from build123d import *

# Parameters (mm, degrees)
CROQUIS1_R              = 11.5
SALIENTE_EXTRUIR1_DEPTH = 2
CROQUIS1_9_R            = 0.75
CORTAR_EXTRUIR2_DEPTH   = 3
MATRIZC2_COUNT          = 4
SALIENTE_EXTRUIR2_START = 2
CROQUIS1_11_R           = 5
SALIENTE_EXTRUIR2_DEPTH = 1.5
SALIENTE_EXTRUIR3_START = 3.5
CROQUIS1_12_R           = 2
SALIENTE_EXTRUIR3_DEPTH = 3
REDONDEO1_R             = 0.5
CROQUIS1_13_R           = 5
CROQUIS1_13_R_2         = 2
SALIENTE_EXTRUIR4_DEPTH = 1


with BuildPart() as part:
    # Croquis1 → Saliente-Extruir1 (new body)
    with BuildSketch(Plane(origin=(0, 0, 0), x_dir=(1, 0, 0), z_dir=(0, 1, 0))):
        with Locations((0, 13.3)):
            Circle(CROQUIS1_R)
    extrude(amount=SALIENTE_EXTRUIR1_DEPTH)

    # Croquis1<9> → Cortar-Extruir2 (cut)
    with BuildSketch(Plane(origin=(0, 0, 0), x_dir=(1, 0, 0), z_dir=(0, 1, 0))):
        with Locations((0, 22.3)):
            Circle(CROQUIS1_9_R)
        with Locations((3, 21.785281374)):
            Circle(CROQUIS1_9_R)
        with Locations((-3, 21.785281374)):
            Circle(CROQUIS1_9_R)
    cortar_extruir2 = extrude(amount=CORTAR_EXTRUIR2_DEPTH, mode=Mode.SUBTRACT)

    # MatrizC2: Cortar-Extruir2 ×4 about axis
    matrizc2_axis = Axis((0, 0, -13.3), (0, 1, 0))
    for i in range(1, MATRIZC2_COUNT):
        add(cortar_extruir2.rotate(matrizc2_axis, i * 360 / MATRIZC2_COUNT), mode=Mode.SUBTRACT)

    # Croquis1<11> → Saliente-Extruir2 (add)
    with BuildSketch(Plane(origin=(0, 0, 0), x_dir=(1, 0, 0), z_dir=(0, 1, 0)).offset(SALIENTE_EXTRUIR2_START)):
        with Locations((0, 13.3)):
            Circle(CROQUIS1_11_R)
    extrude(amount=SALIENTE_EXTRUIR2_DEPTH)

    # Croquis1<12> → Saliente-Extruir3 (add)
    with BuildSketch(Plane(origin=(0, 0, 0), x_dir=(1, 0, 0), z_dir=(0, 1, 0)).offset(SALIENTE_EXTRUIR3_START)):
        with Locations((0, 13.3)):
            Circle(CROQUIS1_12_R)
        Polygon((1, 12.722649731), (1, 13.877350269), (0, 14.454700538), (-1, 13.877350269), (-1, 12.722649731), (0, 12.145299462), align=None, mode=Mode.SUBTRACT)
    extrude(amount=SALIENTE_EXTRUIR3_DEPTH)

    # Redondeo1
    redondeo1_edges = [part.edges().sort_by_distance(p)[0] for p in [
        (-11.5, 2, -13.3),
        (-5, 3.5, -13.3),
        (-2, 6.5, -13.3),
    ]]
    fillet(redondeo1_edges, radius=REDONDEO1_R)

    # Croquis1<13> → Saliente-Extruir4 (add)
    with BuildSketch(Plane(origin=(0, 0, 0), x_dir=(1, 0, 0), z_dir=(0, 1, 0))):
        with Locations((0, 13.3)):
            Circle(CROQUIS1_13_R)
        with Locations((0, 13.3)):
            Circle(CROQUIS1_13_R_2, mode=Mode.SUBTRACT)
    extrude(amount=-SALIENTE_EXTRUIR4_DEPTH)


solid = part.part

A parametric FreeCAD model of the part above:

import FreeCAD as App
import Part
import Sketcher
from FreeCAD import Vector
Q = App.Units.Quantity


def edges_at(feature, points):
    """Names of the edges that pass closest to the given points."""
    edges = feature.Shape.Edges
    near = lambda p: min(range(len(edges)), key=lambda i: edges[i].distToShape(Part.Vertex(*p))[0])
    return sorted({f"Edge{near(p) + 1}" for p in points})

doc = App.newDocument("Part")
body = doc.addObject("PartDesign::Body", "Body")

# Sketch on XZ plane
sketch1 = doc.addObject("Sketcher::SketchObject", "Sketch")
body.addObject(sketch1)
sketch1.AttachmentSupport = (doc.XZ_Plane, [""])
sketch1.MapMode = "FlatFace"
sketch1.addGeometry(Part.Circle(Vector(0, -13, 0), Vector(0, 0, 1), 12), False)
sketch1.addConstraint([
    Sketcher.Constraint("PointOnObject", 0, 3, -2),
    Sketcher.Constraint("Diameter", 0, Q("23 mm")),
    Sketcher.Constraint("DistanceY", 0, 3, -1, 1, Q("13.3 mm")),
])
pad1 = doc.addObject("PartDesign::Pad", "Pad")
body.addObject(pad1)
pad1.Profile = sketch1
pad1.Length = 2
pad1.Reversed = True

# Sketch on XZ plane
sketch2 = doc.addObject("Sketcher::SketchObject", "Sketch001")
body.addObject(sketch2)
sketch2.AttachmentSupport = (doc.XZ_Plane, [""])
sketch2.MapMode = "FlatFace"
sketch2.addGeometry([
    Part.Circle(Vector(0, -22.3, 0), Vector(0, 0, 1), 0.8),
    Part.Circle(Vector(3, -21.8, 0), Vector(0, 0, 1), 0.8),
    Part.Circle(Vector(-3, -21.8, 0), Vector(0, 0, 1), 0.8),
], False)
sketch2.addConstraint([
    Sketcher.Constraint("Equal", 0, 1),
    Sketcher.Constraint("Equal", 1, 2),
    Sketcher.Constraint("Symmetric", 1, 3, 2, 3, -2),
    Sketcher.Constraint("PointOnObject", 0, 3, -2),
    Sketcher.Constraint("Diameter", 0, Q("1.5 mm")),
    Sketcher.Constraint("DistanceX", -1, 1, 1, 3, Q("3 mm")),
    Sketcher.Constraint("DistanceY", 0, 3, -1, 1, Q("22.3 mm")),
    Sketcher.Constraint("DistanceY", 1, 3, -1, 1, Q("21.785281 mm")),
])
pocket1 = doc.addObject("PartDesign::Pocket", "Pocket")
body.addObject(pocket1)
pocket1.Profile = sketch2
pocket1.Length = 3
doc.recompute()

datumline = doc.addObject("PartDesign::Line", "DatumLine")
body.addObject(datumline)
datumline.Placement = App.Placement(Vector(0, 0, -13.3), App.Rotation(Vector(0, 0, 1), Vector(0, 1, 0)))
polarpattern = doc.addObject("PartDesign::PolarPattern", "PolarPattern")
body.addObject(polarpattern)
polarpattern.Originals = [pocket1]
polarpattern.Axis = (datumline, [""])
polarpattern.Angle = 360
polarpattern.Occurrences = 4
body.Tip = polarpattern

# Sketch on XZ plane
sketch3 = doc.addObject("Sketcher::SketchObject", "Sketch002")
body.addObject(sketch3)
sketch3.AttachmentSupport = (doc.XZ_Plane, [""])
sketch3.MapMode = "FlatFace"
sketch3.AttachmentOffset = App.Placement(Vector(0, 0, -2), App.Rotation())
sketch3.addGeometry(Part.Circle(Vector(0, -13, 0), Vector(0, 0, 1), 5), False)
sketch3.addConstraint([
    Sketcher.Constraint("PointOnObject", 0, 3, -2),
    Sketcher.Constraint("Diameter", 0, Q("10 mm")),
    Sketcher.Constraint("DistanceY", 0, 3, -1, 1, Q("13.3 mm")),
])
pad2 = doc.addObject("PartDesign::Pad", "Pad001")
body.addObject(pad2)
pad2.Profile = sketch3
pad2.Length = 1.5
pad2.Reversed = True

# Sketch on XZ plane
sketch4 = doc.addObject("Sketcher::SketchObject", "Sketch003")
body.addObject(sketch4)
sketch4.AttachmentSupport = (doc.XZ_Plane, [""])
sketch4.MapMode = "FlatFace"
sketch4.AttachmentOffset = App.Placement(Vector(0, 0, -3.5), App.Rotation())
sketch4.addGeometry([
    Part.Circle(Vector(0, -13.3, 0), Vector(0, 0, 1), 2),  # 0
    Part.LineSegment(Vector(1, -13.9, 0), Vector(1, -12.7, 0)),  # 1
    Part.LineSegment(Vector(1, -12.7, 0), Vector(0, -12.1, 0)),  # 2
    Part.LineSegment(Vector(0, -12.1, 0), Vector(-1, -12.7, 0)),  # 3
    Part.LineSegment(Vector(-1, -12.7, 0), Vector(-1, -13.9, 0)),  # 4
    Part.LineSegment(Vector(-1, -13.9, 0), Vector(0, -14.5, 0)),  # 5
    Part.LineSegment(Vector(0, -14.5, 0), Vector(1, -13.9, 0)),  # 6
], False)
sketch4.addConstraint([
    Sketcher.Constraint("Coincident", 1, 2, 2, 1),
    Sketcher.Constraint("Coincident", 2, 2, 3, 1),
    Sketcher.Constraint("Coincident", 3, 2, 4, 1),
    Sketcher.Constraint("Coincident", 4, 2, 5, 1),
    Sketcher.Constraint("Coincident", 5, 2, 6, 1),
    Sketcher.Constraint("Coincident", 6, 2, 1, 1),
    Sketcher.Constraint("Vertical", 1),
    Sketcher.Constraint("Vertical", 4),
    Sketcher.Constraint("Symmetric", 1, 2, 3, 2, -2),
    Sketcher.Constraint("PointOnObject", 0, 3, -2),
    Sketcher.Constraint("PointOnObject", 2, 2, -2),
    Sketcher.Constraint("PointOnObject", 5, 2, -2),
    Sketcher.Constraint("Parallel", 2, 5),
    Sketcher.Constraint("Parallel", 3, 6),
    Sketcher.Constraint("Diameter", 0, Q("4 mm")),
    Sketcher.Constraint("Angle", 2, Q("150 deg")),
    Sketcher.Constraint("DistanceX", -1, 1, 1, 2, Q("1 mm")),
    Sketcher.Constraint("DistanceY", 0, 3, -1, 1, Q("13.3 mm")),
    Sketcher.Constraint("DistanceY", 1, 1, 1, 2, Q("1.154701 mm")),
    Sketcher.Constraint("DistanceY", 2, 2, -1, 1, Q("12.145299 mm")),
])
pad3 = doc.addObject("PartDesign::Pad", "Pad002")
body.addObject(pad3)
pad3.Profile = sketch4
pad3.Length = 3
pad3.Reversed = True
doc.recompute()

fillet = doc.addObject("PartDesign::Fillet", "Fillet")
body.addObject(fillet)
fillet.Base = (pad3, edges_at(pad3, [(-11.5, 2, -13.3), (-5, 3.5, -13.3), (-2, 6.5, -13.3)]))
fillet.Radius = 0.5

# Sketch on XZ plane
sketch5 = doc.addObject("Sketcher::SketchObject", "Sketch004")
body.addObject(sketch5)
sketch5.AttachmentSupport = (doc.XZ_Plane, [""])
sketch5.MapMode = "FlatFace"
sketch5.addGeometry([
    Part.Circle(Vector(0, -13.3, 0), Vector(0, 0, 1), 5),
    Part.Circle(Vector(0, -13.3, 0), Vector(0, 0, 1), 2),
], False)
sketch5.addConstraint([
    Sketcher.Constraint("Coincident", 1, 3, 0, 3),
    Sketcher.Constraint("PointOnObject", 0, 3, -2),
    Sketcher.Constraint("Diameter", 0, Q("10 mm")),
    Sketcher.Constraint("Diameter", 1, Q("4 mm")),
    Sketcher.Constraint("DistanceY", 0, 3, -1, 1, Q("13.3 mm")),
])
pad4 = doc.addObject("PartDesign::Pad", "Pad003")
body.addObject(pad4)
pad4.Profile = sketch5
pad4.Length = 1

doc.recompute()
